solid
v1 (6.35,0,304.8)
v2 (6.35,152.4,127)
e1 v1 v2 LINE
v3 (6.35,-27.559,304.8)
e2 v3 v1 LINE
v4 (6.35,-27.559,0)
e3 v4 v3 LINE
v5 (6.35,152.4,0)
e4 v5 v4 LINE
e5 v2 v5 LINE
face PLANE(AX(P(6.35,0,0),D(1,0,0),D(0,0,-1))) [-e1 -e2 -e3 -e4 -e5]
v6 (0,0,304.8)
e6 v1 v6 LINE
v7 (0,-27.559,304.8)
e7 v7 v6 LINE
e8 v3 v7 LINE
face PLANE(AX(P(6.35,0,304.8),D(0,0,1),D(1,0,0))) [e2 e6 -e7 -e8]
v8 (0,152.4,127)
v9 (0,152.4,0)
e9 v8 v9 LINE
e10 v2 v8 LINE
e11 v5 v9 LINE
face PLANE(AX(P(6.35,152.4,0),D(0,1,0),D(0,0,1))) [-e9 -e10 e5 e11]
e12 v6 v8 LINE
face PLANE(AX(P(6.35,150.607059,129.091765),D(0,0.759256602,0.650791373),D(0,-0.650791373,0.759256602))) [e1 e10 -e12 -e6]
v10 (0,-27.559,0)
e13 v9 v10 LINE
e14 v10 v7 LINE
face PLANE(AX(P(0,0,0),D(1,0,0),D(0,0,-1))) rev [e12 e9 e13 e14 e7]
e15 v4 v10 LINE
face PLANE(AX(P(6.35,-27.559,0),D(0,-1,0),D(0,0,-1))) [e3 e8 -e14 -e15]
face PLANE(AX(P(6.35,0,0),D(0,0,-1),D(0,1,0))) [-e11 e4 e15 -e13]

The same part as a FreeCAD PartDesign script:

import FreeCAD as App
import Part
import Sketcher
Q = App.Units.Quantity

doc = App.newDocument("Part")
body = doc.addObject("PartDesign::Body", "Body")

sketch1 = body.newObject("Sketcher::SketchObject", "Sketch")
sketch1.AttachmentSupport = (doc.getObject("YZ_Plane"), [""])
sketch1.MapMode = "FlatFace"
sketch1.addGeometry([
    Part.LineSegment(App.Vector(-27.559, 0, 0), App.Vector(152.4, 0, 0)),
    Part.LineSegment(App.Vector(152.4, 0, 0), App.Vector(152.4, 127, 0)),
    Part.LineSegment(App.Vector(152.4, 127, 0), App.Vector(0, 304.8, 0)),
    Part.LineSegment(App.Vector(0, 304.8, 0), App.Vector(-27.559, 304.8, 0)),
    Part.LineSegment(App.Vector(-27.559, 304.8, 0), App.Vector(-27.559, 0, 0)),
], False)
sketch1.addConstraint([
    Sketcher.Constraint("Coincident", 0, 2, 1, 1),
    Sketcher.Constraint("Coincident", 1, 2, 2, 1),
    Sketcher.Constraint("Coincident", 2, 2, 3, 1),
    Sketcher.Constraint("Coincident", 3, 2, 4, 1),
    Sketcher.Constraint("Coincident", 4, 2, 0, 1),
    Sketcher.Constraint("Horizontal", 0),
    Sketcher.Constraint("Vertical", 1),
    Sketcher.Constraint("Horizontal", 3),
    Sketcher.Constraint("Vertical", 4),
    Sketcher.Constraint("PointOnObject", 0, 2, -1),
    Sketcher.Constraint("PointOnObject", 2, 2, -2),
    Sketcher.Constraint("DistanceY", 1, 1, 1, 2, Q("5 in")),
    Sketcher.Constraint("DistanceY", 4, 2, 4, 1, Q("12 in")),
    Sketcher.Constraint("DistanceX", -1, 1, 0, 2, Q("6 in")),
    Sketcher.Constraint("DistanceX", 0, 1, 0, 2, Q("7.085 in")),
])
pad1 = body.newObject("PartDesign::Pad", "Pad")
pad1.Profile = sketch1
pad1.Length = Q("0.25 in")

doc.recompute()
